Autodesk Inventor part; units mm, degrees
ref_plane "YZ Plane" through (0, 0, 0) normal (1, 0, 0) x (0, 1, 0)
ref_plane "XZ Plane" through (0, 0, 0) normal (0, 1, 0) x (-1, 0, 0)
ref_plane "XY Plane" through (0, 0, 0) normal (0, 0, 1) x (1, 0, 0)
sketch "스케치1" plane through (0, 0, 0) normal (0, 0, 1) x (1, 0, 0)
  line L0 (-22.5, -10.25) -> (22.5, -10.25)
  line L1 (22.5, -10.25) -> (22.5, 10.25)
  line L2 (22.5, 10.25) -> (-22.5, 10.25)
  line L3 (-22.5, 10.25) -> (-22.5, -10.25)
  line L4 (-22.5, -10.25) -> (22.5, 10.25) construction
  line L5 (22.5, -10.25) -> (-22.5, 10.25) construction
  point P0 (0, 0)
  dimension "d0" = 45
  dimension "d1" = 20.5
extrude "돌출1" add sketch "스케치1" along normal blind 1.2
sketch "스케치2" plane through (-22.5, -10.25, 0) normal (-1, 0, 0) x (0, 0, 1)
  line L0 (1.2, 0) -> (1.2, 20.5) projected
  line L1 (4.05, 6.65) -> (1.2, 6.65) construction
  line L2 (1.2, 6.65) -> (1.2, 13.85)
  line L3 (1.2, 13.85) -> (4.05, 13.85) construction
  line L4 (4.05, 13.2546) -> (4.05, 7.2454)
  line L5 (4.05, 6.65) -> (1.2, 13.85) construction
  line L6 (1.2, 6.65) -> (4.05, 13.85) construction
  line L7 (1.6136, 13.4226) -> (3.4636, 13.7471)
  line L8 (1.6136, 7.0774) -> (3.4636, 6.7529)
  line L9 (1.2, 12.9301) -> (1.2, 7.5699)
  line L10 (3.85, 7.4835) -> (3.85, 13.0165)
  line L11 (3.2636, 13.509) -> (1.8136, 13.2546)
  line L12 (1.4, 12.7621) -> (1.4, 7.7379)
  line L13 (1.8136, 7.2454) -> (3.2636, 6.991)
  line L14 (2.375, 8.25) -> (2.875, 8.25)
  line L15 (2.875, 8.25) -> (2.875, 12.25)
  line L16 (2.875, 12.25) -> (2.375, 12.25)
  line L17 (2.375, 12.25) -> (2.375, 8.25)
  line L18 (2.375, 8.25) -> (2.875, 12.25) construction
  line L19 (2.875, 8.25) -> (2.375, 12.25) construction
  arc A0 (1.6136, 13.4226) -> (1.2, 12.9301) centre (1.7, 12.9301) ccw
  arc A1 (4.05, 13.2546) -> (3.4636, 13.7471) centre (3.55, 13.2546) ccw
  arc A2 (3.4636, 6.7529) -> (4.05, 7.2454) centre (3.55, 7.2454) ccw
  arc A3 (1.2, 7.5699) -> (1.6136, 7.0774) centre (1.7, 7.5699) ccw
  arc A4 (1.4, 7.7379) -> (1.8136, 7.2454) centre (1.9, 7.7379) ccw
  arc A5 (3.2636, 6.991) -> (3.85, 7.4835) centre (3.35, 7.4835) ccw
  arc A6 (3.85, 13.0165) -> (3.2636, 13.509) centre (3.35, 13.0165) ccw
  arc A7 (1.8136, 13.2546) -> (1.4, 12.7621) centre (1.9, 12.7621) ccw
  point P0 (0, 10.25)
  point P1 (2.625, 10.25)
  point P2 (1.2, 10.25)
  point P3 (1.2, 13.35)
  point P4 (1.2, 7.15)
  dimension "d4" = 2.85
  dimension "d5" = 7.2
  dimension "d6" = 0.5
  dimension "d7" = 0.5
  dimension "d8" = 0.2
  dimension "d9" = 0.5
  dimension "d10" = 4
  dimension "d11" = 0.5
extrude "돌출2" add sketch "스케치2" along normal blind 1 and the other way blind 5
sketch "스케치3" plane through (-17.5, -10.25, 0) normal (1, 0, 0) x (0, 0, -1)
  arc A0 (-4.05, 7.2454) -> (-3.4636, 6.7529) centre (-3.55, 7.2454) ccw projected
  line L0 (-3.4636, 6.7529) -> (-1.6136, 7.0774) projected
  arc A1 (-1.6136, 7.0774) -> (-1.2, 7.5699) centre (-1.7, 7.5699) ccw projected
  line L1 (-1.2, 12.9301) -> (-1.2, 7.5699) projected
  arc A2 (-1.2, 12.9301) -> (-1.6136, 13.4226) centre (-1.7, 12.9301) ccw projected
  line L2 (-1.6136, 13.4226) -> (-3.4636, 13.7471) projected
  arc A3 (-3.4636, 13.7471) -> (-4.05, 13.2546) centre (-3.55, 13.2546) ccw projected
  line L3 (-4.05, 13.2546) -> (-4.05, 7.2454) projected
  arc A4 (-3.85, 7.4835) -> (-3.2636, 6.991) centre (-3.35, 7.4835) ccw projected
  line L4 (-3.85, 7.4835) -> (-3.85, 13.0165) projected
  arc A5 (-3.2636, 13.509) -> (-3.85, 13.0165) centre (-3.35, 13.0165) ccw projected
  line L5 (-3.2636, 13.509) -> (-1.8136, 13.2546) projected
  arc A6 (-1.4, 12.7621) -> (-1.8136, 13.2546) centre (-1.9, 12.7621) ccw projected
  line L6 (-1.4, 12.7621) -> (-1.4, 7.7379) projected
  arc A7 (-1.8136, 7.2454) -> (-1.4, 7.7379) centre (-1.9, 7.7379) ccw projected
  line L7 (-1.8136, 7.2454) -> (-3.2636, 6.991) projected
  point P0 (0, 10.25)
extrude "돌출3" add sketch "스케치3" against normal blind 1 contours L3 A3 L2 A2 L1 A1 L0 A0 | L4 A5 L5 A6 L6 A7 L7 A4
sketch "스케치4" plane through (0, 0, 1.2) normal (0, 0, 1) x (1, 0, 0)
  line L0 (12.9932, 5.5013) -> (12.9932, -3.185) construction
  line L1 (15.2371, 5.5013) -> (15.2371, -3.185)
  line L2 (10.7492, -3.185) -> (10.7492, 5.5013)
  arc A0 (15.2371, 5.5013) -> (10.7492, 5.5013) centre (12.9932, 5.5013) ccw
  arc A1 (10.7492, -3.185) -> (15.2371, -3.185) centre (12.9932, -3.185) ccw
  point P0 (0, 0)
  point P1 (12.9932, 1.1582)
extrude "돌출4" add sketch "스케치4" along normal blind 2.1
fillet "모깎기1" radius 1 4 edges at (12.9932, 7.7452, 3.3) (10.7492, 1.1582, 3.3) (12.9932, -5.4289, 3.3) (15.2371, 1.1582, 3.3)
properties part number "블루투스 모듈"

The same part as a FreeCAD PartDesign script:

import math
import FreeCAD as App
import Part
import Sketcher
Q = App.Units.Quantity


def edges_at(feature, points):
    """Names of the edges that pass closest to the given points."""
    edges = feature.Shape.Edges
    near = lambda p: min(range(len(edges)), key=lambda i: edges[i].distToShape(Part.Vertex(*p))[0])
    return sorted({f"Edge{near(p) + 1}" for p in points})

doc = App.newDocument("Part")
body = doc.addObject("PartDesign::Body", "Body")
body.AllowCompound = True

# Sketch on XY plane
sketch1 = body.newObject("Sketcher::SketchObject", "Sketch")
sketch1.AttachmentSupport = (doc.getObject("XY_Plane"), [""])
sketch1.MapMode = "FlatFace"
sketch1.addGeometry([
    Part.LineSegment(App.Vector(-22, 10, 0), App.Vector(-22, -10, 0)),
    Part.LineSegment(App.Vector(-22, -10, 0), App.Vector(22, -10, 0)),
    Part.LineSegment(App.Vector(22, -10, 0), App.Vector(22, 10, 0)),
    Part.LineSegment(App.Vector(22, 10, 0), App.Vector(-22, 10, 0)),
], False)
sketch1.addConstraint([
    Sketcher.Constraint("Coincident", 0, 2, 1, 1),
    Sketcher.Constraint("Coincident", 1, 2, 2, 1),
    Sketcher.Constraint("Coincident", 2, 2, 3, 1),
    Sketcher.Constraint("Coincident", 3, 2, 0, 1),
    Sketcher.Constraint("Vertical", 0),
    Sketcher.Constraint("Horizontal", 1),
    Sketcher.Constraint("Vertical", 2),
    Sketcher.Constraint("Horizontal", 3),
    Sketcher.Constraint("Symmetric", 0, 2, 2, 2, -1, 1),
    Sketcher.Constraint("DistanceX", 1, 1, 1, 2, 45.0),
    Sketcher.Constraint("DistanceY", 0, 2, 0, 1, 20.5),
])
pad1 = body.newObject("PartDesign::Pad", "Pad")
pad1.Profile = sketch1
pad1.Length = 1.2

# Sketch on YZ plane
sketch2 = body.newObject("Sketcher::SketchObject", "Sketch001")
sketch2.AttachmentSupport = (doc.getObject("YZ_Plane"), [""])
sketch2.MapMode = "FlatFace"
sketch2.AttachmentOffset = App.Placement(App.Vector(0, 0, -22.5), App.Rotation())
sketch2.addGeometry([
    Part.LineSegment(App.Vector(2.7, 1.2, 0), App.Vector(-2.7, 1.2, 0)),  # 0
    Part.ArcOfCircle(Part.Circle(App.Vector(-2.7, 1.7, 0), App.Vector(0, 0, 1), 0.5), math.radians(-170), math.radians(-90)),  # 1
    Part.LineSegment(App.Vector(-3.2, 1.6, 0), App.Vector(-3.5, 3.5, 0)),  # 2
    Part.ArcOfCircle(Part.Circle(App.Vector(-3, 3.5, 0), App.Vector(0, 0, 1), 0.5), math.radians(90), math.radians(190)),  # 3
    Part.LineSegment(App.Vector(-3, 4, 0), App.Vector(3, 4, 0)),  # 4
    Part.ArcOfCircle(Part.Circle(App.Vector(3, 3.5, 0), App.Vector(0, 0, 1), 0.5), math.radians(-10), math.radians(90)),  # 5
    Part.LineSegment(App.Vector(3.5, 3.5, 0), App.Vector(3.2, 1.6, 0)),  # 6
    Part.ArcOfCircle(Part.Circle(App.Vector(2.7, 1.7, 0), App.Vector(0, 0, 1), 0.5), math.radians(-90), math.radians(-10)),  # 7
    Part.LineSegment(App.Vector(2.8, 3.9, 0), App.Vector(-2.8, 3.9, 0)),  # 8
    Part.ArcOfCircle(Part.Circle(App.Vector(-2.8, 3.4, 0), App.Vector(0, 0, 1), 0.5), math.radians(90), math.radians(190)),  # 9
    Part.LineSegment(App.Vector(-3.3, 3.3, 0), App.Vector(-3, 1.8, 0)),  # 10
    Part.ArcOfCircle(Part.Circle(App.Vector(-2.5, 1.9, 0), App.Vector(0, 0, 1), 0.5), math.radians(-170), math.radians(-90)),  # 11
    Part.LineSegment(App.Vector(-2.5, 1.4, 0), App.Vector(2.5, 1.4, 0)),  # 12
    Part.ArcOfCircle(Part.Circle(App.Vector(2.5, 1.9, 0), App.Vector(0, 0, 1), 0.5), math.radians(-90), math.radians(-10)),  # 13
    Part.LineSegment(App.Vector(3, 1.8, 0), App.Vector(3.3, 3.3, 0)),  # 14
    Part.ArcOfCircle(Part.Circle(App.Vector(2.8, 3.4, 0), App.Vector(0, 0, 1), 0.5), math.radians(-10), math.radians(90)),  # 15
    Part.LineSegment(App.Vector(2, 2.4, 0), App.Vector(-2, 2.4, 0)),  # 16
    Part.LineSegment(App.Vector(-2, 2.4, 0), App.Vector(-2, 2.9, 0)),  # 17
    Part.LineSegment(App.Vector(-2, 2.9, 0), App.Vector(2, 2.9, 0)),  # 18
    Part.LineSegment(App.Vector(2, 2.9, 0), App.Vector(2, 2.4, 0)),  # 19
], False)
sketch2.addConstraint([
    Sketcher.Constraint("Tangent", 0, 2, 1, 2),
    Sketcher.Constraint("Tangent", 1, 1, 2, 1),
    Sketcher.Constraint("Tangent", 2, 2, 3, 2),
    Sketcher.Constraint("Tangent", 3, 1, 4, 1),
    Sketcher.Constraint("Tangent", 4, 2, 5, 2),
    Sketcher.Constraint("Tangent", 5, 1, 6, 1),
    Sketcher.Constraint("Tangent", 6, 2, 7, 2),
    Sketcher.Constraint("Tangent", 7, 1, 0, 1),
    Sketcher.Constraint("Tangent", 8, 2, 9, 1),
    Sketcher.Constraint("Tangent", 9, 2, 10, 1),
    Sketcher.Constraint("Tangent", 10, 2, 11, 1),
    Sketcher.Constraint("Tangent", 11, 2, 12, 1),
    Sketcher.Constraint("Tangent", 12, 2, 13, 1),
    Sketcher.Constraint("Tangent", 13, 2, 14, 1),
    Sketcher.Constraint("Tangent", 14, 2, 15, 1),
    Sketcher.Constraint("Tangent", 15, 2, 8, 1),
    Sketcher.Constraint("Coincident", 16, 2, 17, 1),
    Sketcher.Constraint("Coincident", 17, 2, 18, 1),
    Sketcher.Constraint("Coincident", 18, 2, 19, 1),
    Sketcher.Constraint("Coincident", 19, 2, 16, 1),
    Sketcher.Constraint("Horizontal", 0),
    Sketcher.Constraint("Horizontal", 4),
    Sketcher.Constraint("Horizontal", 8),
    Sketcher.Constraint("Horizontal", 12),
    Sketcher.Constraint("Horizontal", 16),
    Sketcher.Constraint("Vertical", 17),
    Sketcher.Constraint("Horizontal", 18),
    Sketcher.Constraint("Vertical", 19),
    Sketcher.Constraint("Equal", 1, 3),
    Sketcher.Constraint("Equal", 3, 5),
    Sketcher.Constraint("Equal", 5, 7),
    Sketcher.Constraint("Equal", 7, 9),
    Sketcher.Constraint("Equal", 9, 11),
    Sketcher.Constraint("Equal", 11, 13),
    Sketcher.Constraint("Equal", 13, 15),
    Sketcher.Constraint("Symmetric", 2, 2, 5, 1, -2),
    Sketcher.Constraint("Symmetric", 10, 2, 13, 2, -2),
    Sketcher.Constraint("Parallel", 2, 10),
    Sketcher.Constraint("Vertical", 3, 1, 10, 2),
    Sketcher.Constraint("Radius", 1, 0.5),
    Sketcher.Constraint("DistanceX", 16, 2, 16, 1, 4.0),
    Sketcher.Constraint("DistanceY", 17, 1, 17, 2, 0.5),
    Sketcher.Constraint("DistanceY", 9, 3, 3, 3, 0.2),
    Sketcher.Constraint("DistanceY", 1, 3, 11, 3, 0.2),
    Sketcher.Constraint("DistanceX", 16, 2, -1, 1, 2.0),
    Sketcher.Constraint("DistanceY", -1, 1, 1, 3, 1.7),
    Sketcher.Constraint("Angle", 10, Q("-80.0488 deg")),
    Sketcher.Constraint("DistanceX", 8, 2, 8, 1, 5.533),
    Sketcher.Constraint("DistanceX", 1, 3, -1, 1, 2.68),
    Sketcher.Constraint("DistanceY", -1, 1, 16, 2, 2.375),
])
pad2 = body.newObject("PartDesign::Pad", "Pad001")
pad2.Profile = sketch2
pad2.Type = "TwoLengths"
pad2.Length = 1
pad2.Length2 = 5
pad2.Reversed = True

# Sketch on YZ plane
sketch3 = body.newObject("Sketcher::SketchObject", "Sketch002")
sketch3.AttachmentSupport = (doc.getObject("YZ_Plane"), [""])
sketch3.MapMode = "FlatFace"
sketch3.AttachmentOffset = App.Placement(App.Vector(0, 0, -17.5), App.Rotation())
sketch3.addGeometry([
    Part.LineSegment(App.Vector(3, 4, 0), App.Vector(-3, 4, 0)),  # 0
    Part.ArcOfCircle(Part.Circle(App.Vector(-3, 3.5, 0), App.Vector(0, 0, 1), 0.5), math.radians(90), math.radians(190)),  # 1
    Part.LineSegment(App.Vector(-3.5, 3.5, 0), App.Vector(-3.2, 1.6, 0)),  # 2
    Part.ArcOfCircle(Part.Circle(App.Vector(-2.7, 1.7, 0), App.Vector(0, 0, 1), 0.5), math.radians(-170), math.radians(-90)),  # 3
    Part.LineSegment(App.Vector(-2.7, 1.2, 0), App.Vector(2.7, 1.2, 0)),  # 4
    Part.ArcOfCircle(Part.Circle(App.Vector(2.7, 1.7, 0), App.Vector(0, 0, 1), 0.5), math.radians(-90), math.radians(-10)),  # 5
    Part.LineSegment(App.Vector(3.2, 1.6, 0), App.Vector(3.5, 3.5, 0)),  # 6
    Part.ArcOfCircle(Part.Circle(App.Vector(3, 3.5, 0), App.Vector(0, 0, 1), 0.5), math.radians(-10), math.radians(90)),  # 7
], False)
sketch3.addConstraint([
    Sketcher.Constraint("Tangent", 0, 2, 1, 1),
    Sketcher.Constraint("Tangent", 1, 2, 2, 1),
    Sketcher.Constraint("Tangent", 2, 2, 3, 1),
    Sketcher.Constraint("Tangent", 3, 2, 4, 1),
    Sketcher.Constraint("Tangent", 4, 2, 5, 1),
    Sketcher.Constraint("Tangent", 5, 2, 6, 1),
    Sketcher.Constraint("Tangent", 6, 2, 7, 1),
    Sketcher.Constraint("Tangent", 7, 2, 0, 1),
    Sketcher.Constraint("Horizontal", 0),
    Sketcher.Constraint("Horizontal", 4),
    Sketcher.Constraint("Equal", 1, 3),
    Sketcher.Constraint("Equal", 3, 5),
    Sketcher.Constraint("Equal", 5, 7),
    Sketcher.Constraint("Symmetric", 2, 2, 5, 2, -2),
    Sketcher.Constraint("Radius", 1, 0.5),
    Sketcher.Constraint("DistanceY", -1, 1, 3, 3, 1.7),
    Sketcher.Constraint("DistanceY", -1, 1, 1, 3, 3.55),
    Sketcher.Constraint("DistanceX", 3, 3, -1, 1, 2.68),
    Sketcher.Constraint("DistanceX", 0, 2, 0, 1, 6.0092),
])
pad3 = body.newObject("PartDesign::Pad", "Pad002")
pad3.Profile = sketch3
pad3.Length = 1
pad3.Reversed = True

# Sketch on XY plane
sketch4 = body.newObject("Sketcher::SketchObject", "Sketch003")
sketch4.AttachmentSupport = (doc.getObject("XY_Plane"), [""])
sketch4.MapMode = "FlatFace"
sketch4.AttachmentOffset = App.Placement(App.Vector(0, 0, 1.2), App.Rotation())
sketch4.addGeometry([
    Part.LineSegment(App.Vector(15.2, -3.2, 0), App.Vector(15.2, 5.5, 0)),
    Part.ArcOfCircle(Part.Circle(App.Vector(13, 5.5, 0), App.Vector(0, 0, 1), 2.2), math.radians(0), math.radians(180)),
    Part.LineSegment(App.Vector(10.7, 5.5, 0), App.Vector(10.7, -3.2, 0)),
    Part.ArcOfCircle(Part.Circle(App.Vector(13, -3.2, 0), App.Vector(0, 0, 1), 2.2), math.radians(180), math.radians(360)),
], False)
sketch4.addConstraint([
    Sketcher.Constraint("Tangent", 0, 2, 1, 1),
    Sketcher.Constraint("Tangent", 1, 2, 2, 1),
    Sketcher.Constraint("Tangent", 2, 2, 3, 1),
    Sketcher.Constraint("Tangent", 3, 2, 0, 1),
    Sketcher.Constraint("Vertical", 0),
    Sketcher.Constraint("Vertical", 2),
    Sketcher.Constraint("Radius", 1, 2.244),
    Sketcher.Constraint("DistanceY", 0, 1, 0, 2, 8.6863),
    Sketcher.Constraint("DistanceY", 3, 3, -1, 1, 3.185),
    Sketcher.Constraint("DistanceX", -1, 1, 0, 2, 15.237),
])
pad4 = body.newObject("PartDesign::Pad", "Pad003")
pad4.Profile = sketch4
pad4.Length = 2.1
doc.recompute()

fillet = body.newObject("PartDesign::Fillet", "Fillet")
fillet.Base = (pad4, edges_at(pad4, [
    (12.993, 7.745, 3.3),
    (10.749, 1.158, 3.3),
    (12.993, -5.429, 3.3),
    (15.237, 1.158, 3.3),
]))
fillet.Radius = 1

doc.recompute()
